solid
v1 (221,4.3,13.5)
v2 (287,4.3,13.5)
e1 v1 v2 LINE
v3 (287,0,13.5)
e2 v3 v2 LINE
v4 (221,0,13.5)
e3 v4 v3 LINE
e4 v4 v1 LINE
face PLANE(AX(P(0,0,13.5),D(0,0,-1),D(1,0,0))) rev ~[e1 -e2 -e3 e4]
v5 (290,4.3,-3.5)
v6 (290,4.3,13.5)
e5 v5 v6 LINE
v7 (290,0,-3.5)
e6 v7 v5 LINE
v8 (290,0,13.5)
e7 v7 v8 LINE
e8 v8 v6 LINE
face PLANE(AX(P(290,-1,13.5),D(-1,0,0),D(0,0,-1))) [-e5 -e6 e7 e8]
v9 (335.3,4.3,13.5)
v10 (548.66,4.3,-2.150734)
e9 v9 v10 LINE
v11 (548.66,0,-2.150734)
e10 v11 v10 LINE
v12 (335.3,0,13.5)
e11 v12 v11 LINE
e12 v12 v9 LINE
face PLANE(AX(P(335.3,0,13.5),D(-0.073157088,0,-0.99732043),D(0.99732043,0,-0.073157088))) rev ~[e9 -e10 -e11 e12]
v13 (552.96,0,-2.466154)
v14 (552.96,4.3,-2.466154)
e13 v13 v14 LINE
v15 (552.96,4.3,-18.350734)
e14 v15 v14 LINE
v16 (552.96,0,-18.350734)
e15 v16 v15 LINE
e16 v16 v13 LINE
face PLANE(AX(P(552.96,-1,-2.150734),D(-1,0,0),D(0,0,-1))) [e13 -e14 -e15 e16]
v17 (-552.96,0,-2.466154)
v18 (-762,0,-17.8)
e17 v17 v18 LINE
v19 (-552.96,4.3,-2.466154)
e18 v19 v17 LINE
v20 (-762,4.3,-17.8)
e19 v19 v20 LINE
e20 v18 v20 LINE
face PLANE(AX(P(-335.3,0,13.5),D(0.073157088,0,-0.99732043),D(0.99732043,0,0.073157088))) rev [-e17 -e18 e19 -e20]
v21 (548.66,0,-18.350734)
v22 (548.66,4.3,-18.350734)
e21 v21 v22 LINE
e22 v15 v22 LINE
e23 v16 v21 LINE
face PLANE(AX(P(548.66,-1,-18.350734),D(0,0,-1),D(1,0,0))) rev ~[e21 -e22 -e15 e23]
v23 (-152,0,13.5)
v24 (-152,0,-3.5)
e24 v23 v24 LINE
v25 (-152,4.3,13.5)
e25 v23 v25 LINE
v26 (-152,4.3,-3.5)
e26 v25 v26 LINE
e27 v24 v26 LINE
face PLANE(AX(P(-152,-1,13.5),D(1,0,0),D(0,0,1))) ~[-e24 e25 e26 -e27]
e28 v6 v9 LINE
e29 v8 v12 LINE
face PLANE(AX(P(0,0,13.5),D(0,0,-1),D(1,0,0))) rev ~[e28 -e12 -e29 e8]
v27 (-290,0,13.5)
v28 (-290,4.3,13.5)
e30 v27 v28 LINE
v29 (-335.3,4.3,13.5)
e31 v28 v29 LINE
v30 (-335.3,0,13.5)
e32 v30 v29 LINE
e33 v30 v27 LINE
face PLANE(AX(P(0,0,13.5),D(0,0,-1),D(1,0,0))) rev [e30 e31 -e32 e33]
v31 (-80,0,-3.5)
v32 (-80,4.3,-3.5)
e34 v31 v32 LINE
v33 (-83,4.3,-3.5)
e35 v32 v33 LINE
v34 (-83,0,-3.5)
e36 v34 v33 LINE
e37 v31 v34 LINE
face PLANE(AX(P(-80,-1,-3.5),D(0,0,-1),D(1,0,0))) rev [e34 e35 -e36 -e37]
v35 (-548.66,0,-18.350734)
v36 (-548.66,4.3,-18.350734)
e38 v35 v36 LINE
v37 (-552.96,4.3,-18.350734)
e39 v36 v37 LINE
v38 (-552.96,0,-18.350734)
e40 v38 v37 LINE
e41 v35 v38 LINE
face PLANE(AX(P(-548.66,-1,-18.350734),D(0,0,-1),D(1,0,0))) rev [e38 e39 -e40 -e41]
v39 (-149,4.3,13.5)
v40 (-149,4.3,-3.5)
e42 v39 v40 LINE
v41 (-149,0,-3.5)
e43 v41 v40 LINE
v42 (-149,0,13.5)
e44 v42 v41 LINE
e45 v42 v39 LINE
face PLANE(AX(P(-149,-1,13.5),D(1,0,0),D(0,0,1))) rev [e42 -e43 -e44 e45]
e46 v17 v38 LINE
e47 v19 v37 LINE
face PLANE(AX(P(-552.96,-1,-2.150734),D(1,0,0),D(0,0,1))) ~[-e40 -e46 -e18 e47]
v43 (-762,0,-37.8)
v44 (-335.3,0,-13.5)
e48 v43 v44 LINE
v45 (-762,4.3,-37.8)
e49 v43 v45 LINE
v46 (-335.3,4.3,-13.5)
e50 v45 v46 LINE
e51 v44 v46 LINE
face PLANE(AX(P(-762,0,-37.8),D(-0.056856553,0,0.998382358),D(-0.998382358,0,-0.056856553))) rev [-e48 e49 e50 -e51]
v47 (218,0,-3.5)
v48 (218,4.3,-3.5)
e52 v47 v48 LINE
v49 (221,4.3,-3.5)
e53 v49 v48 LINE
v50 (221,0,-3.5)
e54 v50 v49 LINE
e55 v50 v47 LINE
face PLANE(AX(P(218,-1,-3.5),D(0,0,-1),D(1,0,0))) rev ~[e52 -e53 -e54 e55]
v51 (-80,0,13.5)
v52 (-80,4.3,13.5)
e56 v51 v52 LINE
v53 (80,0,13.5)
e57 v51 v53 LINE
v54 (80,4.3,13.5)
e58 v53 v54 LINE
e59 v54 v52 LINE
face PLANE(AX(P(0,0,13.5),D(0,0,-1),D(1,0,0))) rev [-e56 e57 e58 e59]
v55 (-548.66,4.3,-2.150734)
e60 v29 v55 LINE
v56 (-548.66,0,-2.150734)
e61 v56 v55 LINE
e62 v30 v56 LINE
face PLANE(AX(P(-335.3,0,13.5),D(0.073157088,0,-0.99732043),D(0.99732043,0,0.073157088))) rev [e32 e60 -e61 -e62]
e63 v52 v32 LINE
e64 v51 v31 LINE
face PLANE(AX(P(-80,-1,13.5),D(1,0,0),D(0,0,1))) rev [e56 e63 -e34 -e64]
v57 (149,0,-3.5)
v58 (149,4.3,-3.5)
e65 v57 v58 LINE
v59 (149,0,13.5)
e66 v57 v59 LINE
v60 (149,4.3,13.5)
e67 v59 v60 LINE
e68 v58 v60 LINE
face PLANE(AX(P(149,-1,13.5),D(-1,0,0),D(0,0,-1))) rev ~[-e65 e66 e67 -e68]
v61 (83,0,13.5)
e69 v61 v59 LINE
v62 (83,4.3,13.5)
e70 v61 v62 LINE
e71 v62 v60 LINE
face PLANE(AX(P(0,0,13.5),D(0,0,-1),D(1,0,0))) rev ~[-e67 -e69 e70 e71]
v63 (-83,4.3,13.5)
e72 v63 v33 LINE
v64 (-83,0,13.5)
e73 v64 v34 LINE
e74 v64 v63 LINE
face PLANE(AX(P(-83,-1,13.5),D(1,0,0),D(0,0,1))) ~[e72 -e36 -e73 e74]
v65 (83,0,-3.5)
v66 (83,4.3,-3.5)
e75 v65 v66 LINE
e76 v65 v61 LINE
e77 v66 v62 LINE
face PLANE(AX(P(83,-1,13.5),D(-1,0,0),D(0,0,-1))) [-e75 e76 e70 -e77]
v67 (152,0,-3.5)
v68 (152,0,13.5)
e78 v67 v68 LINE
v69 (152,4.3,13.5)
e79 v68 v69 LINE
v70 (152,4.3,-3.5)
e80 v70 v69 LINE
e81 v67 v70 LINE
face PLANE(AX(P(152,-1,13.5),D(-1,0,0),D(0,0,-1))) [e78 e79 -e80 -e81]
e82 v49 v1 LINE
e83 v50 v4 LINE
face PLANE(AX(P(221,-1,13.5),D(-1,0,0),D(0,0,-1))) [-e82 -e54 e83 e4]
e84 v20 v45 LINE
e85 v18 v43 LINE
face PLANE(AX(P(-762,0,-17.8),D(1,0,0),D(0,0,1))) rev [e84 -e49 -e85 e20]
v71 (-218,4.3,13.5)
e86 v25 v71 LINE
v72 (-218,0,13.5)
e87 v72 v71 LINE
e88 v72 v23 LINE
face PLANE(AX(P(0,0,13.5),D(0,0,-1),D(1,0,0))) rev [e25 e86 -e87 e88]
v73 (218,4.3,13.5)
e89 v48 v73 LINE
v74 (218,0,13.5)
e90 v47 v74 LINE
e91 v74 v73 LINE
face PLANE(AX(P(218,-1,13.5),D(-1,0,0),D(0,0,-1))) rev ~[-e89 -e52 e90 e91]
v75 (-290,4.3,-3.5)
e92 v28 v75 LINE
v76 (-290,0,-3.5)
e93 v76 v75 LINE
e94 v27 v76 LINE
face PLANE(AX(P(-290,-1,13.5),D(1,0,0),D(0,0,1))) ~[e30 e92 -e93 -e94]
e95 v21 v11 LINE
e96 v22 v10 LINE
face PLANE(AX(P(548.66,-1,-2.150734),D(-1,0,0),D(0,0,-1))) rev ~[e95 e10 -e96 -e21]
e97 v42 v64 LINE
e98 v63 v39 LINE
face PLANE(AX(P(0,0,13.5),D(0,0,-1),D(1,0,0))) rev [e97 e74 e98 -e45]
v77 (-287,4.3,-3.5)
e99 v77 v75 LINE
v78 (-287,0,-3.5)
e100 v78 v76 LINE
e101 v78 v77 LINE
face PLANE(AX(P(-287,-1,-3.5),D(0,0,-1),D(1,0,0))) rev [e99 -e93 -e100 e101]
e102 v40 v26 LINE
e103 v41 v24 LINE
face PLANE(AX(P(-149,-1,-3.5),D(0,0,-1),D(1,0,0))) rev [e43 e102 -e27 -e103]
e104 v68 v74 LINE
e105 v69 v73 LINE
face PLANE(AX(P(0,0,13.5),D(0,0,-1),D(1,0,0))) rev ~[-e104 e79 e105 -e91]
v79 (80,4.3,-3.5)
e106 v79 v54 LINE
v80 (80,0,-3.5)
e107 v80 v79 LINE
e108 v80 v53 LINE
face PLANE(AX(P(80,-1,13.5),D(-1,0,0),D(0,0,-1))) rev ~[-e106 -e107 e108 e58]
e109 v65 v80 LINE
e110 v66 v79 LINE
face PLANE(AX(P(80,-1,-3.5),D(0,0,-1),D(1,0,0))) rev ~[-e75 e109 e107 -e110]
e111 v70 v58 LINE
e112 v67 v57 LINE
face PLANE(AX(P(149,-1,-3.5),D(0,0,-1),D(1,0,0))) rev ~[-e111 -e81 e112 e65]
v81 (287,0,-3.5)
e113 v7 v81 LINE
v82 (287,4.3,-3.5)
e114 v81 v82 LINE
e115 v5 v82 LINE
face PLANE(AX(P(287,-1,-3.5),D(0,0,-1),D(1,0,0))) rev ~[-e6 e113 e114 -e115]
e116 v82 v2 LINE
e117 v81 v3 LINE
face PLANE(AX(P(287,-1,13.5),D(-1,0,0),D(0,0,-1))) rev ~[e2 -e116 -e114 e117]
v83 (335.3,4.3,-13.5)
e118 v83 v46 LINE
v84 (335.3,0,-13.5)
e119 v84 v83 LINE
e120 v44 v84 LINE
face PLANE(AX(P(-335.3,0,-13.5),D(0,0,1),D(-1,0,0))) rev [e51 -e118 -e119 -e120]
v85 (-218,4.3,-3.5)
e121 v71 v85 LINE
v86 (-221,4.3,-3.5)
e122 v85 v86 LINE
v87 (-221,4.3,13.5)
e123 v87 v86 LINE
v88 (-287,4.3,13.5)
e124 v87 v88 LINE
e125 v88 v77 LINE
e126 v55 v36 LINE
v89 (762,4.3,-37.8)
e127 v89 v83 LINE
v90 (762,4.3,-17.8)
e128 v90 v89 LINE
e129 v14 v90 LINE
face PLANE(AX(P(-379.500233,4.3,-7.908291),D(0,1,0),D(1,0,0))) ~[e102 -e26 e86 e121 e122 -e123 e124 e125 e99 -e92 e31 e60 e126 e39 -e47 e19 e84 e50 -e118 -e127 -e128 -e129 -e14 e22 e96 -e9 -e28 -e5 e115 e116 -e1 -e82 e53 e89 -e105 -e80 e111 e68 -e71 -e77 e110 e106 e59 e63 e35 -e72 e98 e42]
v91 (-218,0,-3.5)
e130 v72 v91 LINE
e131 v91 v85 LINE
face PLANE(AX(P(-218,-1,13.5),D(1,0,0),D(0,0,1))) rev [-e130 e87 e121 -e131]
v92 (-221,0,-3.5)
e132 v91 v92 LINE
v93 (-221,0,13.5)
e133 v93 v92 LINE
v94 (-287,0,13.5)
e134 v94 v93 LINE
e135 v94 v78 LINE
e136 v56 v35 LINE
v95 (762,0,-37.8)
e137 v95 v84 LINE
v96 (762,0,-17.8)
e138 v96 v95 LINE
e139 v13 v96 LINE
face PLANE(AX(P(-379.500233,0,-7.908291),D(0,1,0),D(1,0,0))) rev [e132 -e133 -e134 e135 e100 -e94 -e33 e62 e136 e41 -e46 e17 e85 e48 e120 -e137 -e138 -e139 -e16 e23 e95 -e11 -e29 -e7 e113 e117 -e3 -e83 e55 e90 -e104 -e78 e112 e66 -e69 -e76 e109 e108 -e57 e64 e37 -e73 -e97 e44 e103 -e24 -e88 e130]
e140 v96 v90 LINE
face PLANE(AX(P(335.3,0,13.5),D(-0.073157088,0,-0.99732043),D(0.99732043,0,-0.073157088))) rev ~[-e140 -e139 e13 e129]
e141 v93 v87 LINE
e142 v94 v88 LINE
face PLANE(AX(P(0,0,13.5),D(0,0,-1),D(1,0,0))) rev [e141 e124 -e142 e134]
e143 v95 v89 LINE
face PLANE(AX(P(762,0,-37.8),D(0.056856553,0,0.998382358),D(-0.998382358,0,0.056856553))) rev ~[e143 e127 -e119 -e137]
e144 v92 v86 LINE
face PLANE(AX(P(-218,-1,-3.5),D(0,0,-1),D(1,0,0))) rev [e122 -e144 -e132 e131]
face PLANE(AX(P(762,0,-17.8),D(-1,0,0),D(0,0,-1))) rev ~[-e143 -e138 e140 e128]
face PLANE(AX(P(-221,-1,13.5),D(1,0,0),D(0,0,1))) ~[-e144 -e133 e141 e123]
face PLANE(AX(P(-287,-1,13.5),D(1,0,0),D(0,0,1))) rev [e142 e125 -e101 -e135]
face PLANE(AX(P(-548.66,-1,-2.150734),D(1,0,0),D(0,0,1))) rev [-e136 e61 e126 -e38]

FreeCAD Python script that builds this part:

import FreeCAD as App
import Part
import Sketcher
Q = App.Units.Quantity


def add_polygon(sketch, points):
    """Adds a closed chain of lines whose ends are joined by coincident constraints."""
    first, n = sketch.GeometryCount, len(points)
    for a, b in zip(points, points[1:] + points[:1]):
        sketch.addGeometry(Part.LineSegment(App.Vector(*a, 0), App.Vector(*b, 0)), False)
    for i in range(n):
        sketch.addConstraint(Sketcher.Constraint("Coincident", first + i, 2, first + (i + 1) % n, 1))

doc = App.newDocument("Part")
body = doc.addObject("PartDesign::Body", "Body")

# Sketch on XZ plane
sketch1 = body.newObject("Sketcher::SketchObject", "Sketch")
sketch1.AttachmentSupport = (doc.getObject("XZ_Plane"), [""])
sketch1.MapMode = "FlatFace"
add_polygon(sketch1, [(335, 14), (762, -18), (762, -38), (335, -14), (0, -14), (0, 14)])  # lines 0-5
sketch1.addConstraint([
    Sketcher.Constraint("Vertical", 1),
    Sketcher.Constraint("Horizontal", 3),
    Sketcher.Constraint("Vertical", 4),
    Sketcher.Constraint("Horizontal", 5),
    Sketcher.Constraint("Symmetric", 3, 2, 4, 2, -1, 1),
    Sketcher.Constraint("Vertical", 2, 2, 5, 2),
    Sketcher.Constraint("DistanceY", 1, 2, 1, 1, Q("20 mm")),
    Sketcher.Constraint("DistanceY", 4, 1, 4, 2, Q("27 mm")),
    Sketcher.Constraint("DistanceX", 3, 2, 3, 1, Q("335.3 mm")),
    Sketcher.Constraint("DistanceX", -1, 1, 0, 2, Q("762 mm")),
    Sketcher.Constraint("DistanceY", 0, 2, -1, 1, Q("17.8 mm")),
])
pad1 = body.newObject("PartDesign::Pad", "Pad")
pad1.Profile = sketch1
pad1.Length = 4.3
pad1.Reversed = True

# Sketch on XZ plane
sketch2 = body.newObject("Sketcher::SketchObject", "Sketch001")
sketch2.AttachmentSupport = (doc.getObject("XZ_Plane"), [""])
sketch2.MapMode = "FlatFace"
sketch2.AttachmentOffset = App.Placement(App.Vector(0, 0, 1), App.Rotation())
add_polygon(sketch2, [(80, -3.5), (80, 13.5), (83, 13.5), (83, -3.5)])  # lines 0-3
add_polygon(sketch2, [(149, -3.5), (149, 13.5), (152, 13.5), (152, -3.5)])  # lines 4-7
add_polygon(sketch2, [(218, -3.5), (218, 13.5), (221, 13.5), (221, -3.5)])  # lines 8-11
add_polygon(sketch2, [(287, -3.5), (287, 13.5), (290, 13.5), (290, -3.5)])  # lines 12-15
add_polygon(sketch2, [(548.7, -18.4), (548.7, -2.2), (553, -2.2), (553, -18.4)])  # lines 16-19
sketch2.addConstraint([
    Sketcher.Constraint("Vertical", 0),
    Sketcher.Constraint("Horizontal", 1),
    Sketcher.Constraint("Vertical", 2),
    Sketcher.Constraint("Horizontal", 3),
    Sketcher.Constraint("Vertical", 4),
    Sketcher.Constraint("Horizontal", 5),
    Sketcher.Constraint("Vertical", 6),
    Sketcher.Constraint("Horizontal", 7),
    Sketcher.Constraint("Vertical", 8),
    Sketcher.Constraint("Horizontal", 9),
    Sketcher.Constraint("Vertical", 10),
    Sketcher.Constraint("Horizontal", 11),
    Sketcher.Constraint("Vertical", 12),
    Sketcher.Constraint("Horizontal", 13),
    Sketcher.Constraint("Vertical", 14),
    Sketcher.Constraint("Horizontal", 15),
    Sketcher.Constraint("Vertical", 16),
    Sketcher.Constraint("Horizontal", 17),
    Sketcher.Constraint("Vertical", 18),
    Sketcher.Constraint("Horizontal", 19),
    Sketcher.Constraint("Horizontal", 1, 2, 4, 2),
    Sketcher.Constraint("Horizontal", 3, 2, 6, 2),
    Sketcher.Constraint("Horizontal", 5, 2, 8, 2),
    Sketcher.Constraint("Horizontal", 7, 2, 10, 2),
    Sketcher.Constraint("Horizontal", 9, 2, 12, 2),
    Sketcher.Constraint("Horizontal", 11, 2, 14, 2),
    Sketcher.Constraint("Equal", 3, 5),
    Sketcher.Constraint("Equal", 7, 9),
    Sketcher.Constraint("Equal", 11, 13),
    Sketcher.Constraint("DistanceX", 1, 1, 1, 2, Q("3 mm")),
    Sketcher.Constraint("DistanceY", 0, 1, 0, 2, Q("17 mm")),
    Sketcher.Constraint("DistanceX", 17, 1, 17, 2, Q("4.3 mm")),
    Sketcher.Constraint("DistanceY", 16, 1, 16, 2, Q("16.2 mm")),
    Sketcher.Constraint("DistanceX", -1, 1, 0, 2, Q("80 mm")),
    Sketcher.Constraint("DistanceX", -1, 1, 4, 2, Q("149 mm")),
    Sketcher.Constraint("DistanceX", -1, 1, 8, 2, Q("218 mm")),
    Sketcher.Constraint("DistanceX", -1, 1, 12, 2, Q("287 mm")),
    Sketcher.Constraint("DistanceY", -1, 1, 0, 2, Q("13.5 mm")),
    Sketcher.Constraint("DistanceX", -1, 1, 16, 2, Q("548.66 mm")),
    Sketcher.Constraint("DistanceY", 16, 2, -1, 1, Q("2.150734 mm")),
])
pocket1 = body.newObject("PartDesign::Pocket", "Pocket")
pocket1.Profile = sketch2
pocket1.Length = 6.3
doc.recompute()

mirrored = body.newObject("PartDesign::Mirrored", "Mirrored")
mirrored.Originals = [pad1, pocket1]
mirrored.MirrorPlane = (doc.getObject("YZ_Plane"), [""])
body.Tip = mirrored

doc.recompute()
